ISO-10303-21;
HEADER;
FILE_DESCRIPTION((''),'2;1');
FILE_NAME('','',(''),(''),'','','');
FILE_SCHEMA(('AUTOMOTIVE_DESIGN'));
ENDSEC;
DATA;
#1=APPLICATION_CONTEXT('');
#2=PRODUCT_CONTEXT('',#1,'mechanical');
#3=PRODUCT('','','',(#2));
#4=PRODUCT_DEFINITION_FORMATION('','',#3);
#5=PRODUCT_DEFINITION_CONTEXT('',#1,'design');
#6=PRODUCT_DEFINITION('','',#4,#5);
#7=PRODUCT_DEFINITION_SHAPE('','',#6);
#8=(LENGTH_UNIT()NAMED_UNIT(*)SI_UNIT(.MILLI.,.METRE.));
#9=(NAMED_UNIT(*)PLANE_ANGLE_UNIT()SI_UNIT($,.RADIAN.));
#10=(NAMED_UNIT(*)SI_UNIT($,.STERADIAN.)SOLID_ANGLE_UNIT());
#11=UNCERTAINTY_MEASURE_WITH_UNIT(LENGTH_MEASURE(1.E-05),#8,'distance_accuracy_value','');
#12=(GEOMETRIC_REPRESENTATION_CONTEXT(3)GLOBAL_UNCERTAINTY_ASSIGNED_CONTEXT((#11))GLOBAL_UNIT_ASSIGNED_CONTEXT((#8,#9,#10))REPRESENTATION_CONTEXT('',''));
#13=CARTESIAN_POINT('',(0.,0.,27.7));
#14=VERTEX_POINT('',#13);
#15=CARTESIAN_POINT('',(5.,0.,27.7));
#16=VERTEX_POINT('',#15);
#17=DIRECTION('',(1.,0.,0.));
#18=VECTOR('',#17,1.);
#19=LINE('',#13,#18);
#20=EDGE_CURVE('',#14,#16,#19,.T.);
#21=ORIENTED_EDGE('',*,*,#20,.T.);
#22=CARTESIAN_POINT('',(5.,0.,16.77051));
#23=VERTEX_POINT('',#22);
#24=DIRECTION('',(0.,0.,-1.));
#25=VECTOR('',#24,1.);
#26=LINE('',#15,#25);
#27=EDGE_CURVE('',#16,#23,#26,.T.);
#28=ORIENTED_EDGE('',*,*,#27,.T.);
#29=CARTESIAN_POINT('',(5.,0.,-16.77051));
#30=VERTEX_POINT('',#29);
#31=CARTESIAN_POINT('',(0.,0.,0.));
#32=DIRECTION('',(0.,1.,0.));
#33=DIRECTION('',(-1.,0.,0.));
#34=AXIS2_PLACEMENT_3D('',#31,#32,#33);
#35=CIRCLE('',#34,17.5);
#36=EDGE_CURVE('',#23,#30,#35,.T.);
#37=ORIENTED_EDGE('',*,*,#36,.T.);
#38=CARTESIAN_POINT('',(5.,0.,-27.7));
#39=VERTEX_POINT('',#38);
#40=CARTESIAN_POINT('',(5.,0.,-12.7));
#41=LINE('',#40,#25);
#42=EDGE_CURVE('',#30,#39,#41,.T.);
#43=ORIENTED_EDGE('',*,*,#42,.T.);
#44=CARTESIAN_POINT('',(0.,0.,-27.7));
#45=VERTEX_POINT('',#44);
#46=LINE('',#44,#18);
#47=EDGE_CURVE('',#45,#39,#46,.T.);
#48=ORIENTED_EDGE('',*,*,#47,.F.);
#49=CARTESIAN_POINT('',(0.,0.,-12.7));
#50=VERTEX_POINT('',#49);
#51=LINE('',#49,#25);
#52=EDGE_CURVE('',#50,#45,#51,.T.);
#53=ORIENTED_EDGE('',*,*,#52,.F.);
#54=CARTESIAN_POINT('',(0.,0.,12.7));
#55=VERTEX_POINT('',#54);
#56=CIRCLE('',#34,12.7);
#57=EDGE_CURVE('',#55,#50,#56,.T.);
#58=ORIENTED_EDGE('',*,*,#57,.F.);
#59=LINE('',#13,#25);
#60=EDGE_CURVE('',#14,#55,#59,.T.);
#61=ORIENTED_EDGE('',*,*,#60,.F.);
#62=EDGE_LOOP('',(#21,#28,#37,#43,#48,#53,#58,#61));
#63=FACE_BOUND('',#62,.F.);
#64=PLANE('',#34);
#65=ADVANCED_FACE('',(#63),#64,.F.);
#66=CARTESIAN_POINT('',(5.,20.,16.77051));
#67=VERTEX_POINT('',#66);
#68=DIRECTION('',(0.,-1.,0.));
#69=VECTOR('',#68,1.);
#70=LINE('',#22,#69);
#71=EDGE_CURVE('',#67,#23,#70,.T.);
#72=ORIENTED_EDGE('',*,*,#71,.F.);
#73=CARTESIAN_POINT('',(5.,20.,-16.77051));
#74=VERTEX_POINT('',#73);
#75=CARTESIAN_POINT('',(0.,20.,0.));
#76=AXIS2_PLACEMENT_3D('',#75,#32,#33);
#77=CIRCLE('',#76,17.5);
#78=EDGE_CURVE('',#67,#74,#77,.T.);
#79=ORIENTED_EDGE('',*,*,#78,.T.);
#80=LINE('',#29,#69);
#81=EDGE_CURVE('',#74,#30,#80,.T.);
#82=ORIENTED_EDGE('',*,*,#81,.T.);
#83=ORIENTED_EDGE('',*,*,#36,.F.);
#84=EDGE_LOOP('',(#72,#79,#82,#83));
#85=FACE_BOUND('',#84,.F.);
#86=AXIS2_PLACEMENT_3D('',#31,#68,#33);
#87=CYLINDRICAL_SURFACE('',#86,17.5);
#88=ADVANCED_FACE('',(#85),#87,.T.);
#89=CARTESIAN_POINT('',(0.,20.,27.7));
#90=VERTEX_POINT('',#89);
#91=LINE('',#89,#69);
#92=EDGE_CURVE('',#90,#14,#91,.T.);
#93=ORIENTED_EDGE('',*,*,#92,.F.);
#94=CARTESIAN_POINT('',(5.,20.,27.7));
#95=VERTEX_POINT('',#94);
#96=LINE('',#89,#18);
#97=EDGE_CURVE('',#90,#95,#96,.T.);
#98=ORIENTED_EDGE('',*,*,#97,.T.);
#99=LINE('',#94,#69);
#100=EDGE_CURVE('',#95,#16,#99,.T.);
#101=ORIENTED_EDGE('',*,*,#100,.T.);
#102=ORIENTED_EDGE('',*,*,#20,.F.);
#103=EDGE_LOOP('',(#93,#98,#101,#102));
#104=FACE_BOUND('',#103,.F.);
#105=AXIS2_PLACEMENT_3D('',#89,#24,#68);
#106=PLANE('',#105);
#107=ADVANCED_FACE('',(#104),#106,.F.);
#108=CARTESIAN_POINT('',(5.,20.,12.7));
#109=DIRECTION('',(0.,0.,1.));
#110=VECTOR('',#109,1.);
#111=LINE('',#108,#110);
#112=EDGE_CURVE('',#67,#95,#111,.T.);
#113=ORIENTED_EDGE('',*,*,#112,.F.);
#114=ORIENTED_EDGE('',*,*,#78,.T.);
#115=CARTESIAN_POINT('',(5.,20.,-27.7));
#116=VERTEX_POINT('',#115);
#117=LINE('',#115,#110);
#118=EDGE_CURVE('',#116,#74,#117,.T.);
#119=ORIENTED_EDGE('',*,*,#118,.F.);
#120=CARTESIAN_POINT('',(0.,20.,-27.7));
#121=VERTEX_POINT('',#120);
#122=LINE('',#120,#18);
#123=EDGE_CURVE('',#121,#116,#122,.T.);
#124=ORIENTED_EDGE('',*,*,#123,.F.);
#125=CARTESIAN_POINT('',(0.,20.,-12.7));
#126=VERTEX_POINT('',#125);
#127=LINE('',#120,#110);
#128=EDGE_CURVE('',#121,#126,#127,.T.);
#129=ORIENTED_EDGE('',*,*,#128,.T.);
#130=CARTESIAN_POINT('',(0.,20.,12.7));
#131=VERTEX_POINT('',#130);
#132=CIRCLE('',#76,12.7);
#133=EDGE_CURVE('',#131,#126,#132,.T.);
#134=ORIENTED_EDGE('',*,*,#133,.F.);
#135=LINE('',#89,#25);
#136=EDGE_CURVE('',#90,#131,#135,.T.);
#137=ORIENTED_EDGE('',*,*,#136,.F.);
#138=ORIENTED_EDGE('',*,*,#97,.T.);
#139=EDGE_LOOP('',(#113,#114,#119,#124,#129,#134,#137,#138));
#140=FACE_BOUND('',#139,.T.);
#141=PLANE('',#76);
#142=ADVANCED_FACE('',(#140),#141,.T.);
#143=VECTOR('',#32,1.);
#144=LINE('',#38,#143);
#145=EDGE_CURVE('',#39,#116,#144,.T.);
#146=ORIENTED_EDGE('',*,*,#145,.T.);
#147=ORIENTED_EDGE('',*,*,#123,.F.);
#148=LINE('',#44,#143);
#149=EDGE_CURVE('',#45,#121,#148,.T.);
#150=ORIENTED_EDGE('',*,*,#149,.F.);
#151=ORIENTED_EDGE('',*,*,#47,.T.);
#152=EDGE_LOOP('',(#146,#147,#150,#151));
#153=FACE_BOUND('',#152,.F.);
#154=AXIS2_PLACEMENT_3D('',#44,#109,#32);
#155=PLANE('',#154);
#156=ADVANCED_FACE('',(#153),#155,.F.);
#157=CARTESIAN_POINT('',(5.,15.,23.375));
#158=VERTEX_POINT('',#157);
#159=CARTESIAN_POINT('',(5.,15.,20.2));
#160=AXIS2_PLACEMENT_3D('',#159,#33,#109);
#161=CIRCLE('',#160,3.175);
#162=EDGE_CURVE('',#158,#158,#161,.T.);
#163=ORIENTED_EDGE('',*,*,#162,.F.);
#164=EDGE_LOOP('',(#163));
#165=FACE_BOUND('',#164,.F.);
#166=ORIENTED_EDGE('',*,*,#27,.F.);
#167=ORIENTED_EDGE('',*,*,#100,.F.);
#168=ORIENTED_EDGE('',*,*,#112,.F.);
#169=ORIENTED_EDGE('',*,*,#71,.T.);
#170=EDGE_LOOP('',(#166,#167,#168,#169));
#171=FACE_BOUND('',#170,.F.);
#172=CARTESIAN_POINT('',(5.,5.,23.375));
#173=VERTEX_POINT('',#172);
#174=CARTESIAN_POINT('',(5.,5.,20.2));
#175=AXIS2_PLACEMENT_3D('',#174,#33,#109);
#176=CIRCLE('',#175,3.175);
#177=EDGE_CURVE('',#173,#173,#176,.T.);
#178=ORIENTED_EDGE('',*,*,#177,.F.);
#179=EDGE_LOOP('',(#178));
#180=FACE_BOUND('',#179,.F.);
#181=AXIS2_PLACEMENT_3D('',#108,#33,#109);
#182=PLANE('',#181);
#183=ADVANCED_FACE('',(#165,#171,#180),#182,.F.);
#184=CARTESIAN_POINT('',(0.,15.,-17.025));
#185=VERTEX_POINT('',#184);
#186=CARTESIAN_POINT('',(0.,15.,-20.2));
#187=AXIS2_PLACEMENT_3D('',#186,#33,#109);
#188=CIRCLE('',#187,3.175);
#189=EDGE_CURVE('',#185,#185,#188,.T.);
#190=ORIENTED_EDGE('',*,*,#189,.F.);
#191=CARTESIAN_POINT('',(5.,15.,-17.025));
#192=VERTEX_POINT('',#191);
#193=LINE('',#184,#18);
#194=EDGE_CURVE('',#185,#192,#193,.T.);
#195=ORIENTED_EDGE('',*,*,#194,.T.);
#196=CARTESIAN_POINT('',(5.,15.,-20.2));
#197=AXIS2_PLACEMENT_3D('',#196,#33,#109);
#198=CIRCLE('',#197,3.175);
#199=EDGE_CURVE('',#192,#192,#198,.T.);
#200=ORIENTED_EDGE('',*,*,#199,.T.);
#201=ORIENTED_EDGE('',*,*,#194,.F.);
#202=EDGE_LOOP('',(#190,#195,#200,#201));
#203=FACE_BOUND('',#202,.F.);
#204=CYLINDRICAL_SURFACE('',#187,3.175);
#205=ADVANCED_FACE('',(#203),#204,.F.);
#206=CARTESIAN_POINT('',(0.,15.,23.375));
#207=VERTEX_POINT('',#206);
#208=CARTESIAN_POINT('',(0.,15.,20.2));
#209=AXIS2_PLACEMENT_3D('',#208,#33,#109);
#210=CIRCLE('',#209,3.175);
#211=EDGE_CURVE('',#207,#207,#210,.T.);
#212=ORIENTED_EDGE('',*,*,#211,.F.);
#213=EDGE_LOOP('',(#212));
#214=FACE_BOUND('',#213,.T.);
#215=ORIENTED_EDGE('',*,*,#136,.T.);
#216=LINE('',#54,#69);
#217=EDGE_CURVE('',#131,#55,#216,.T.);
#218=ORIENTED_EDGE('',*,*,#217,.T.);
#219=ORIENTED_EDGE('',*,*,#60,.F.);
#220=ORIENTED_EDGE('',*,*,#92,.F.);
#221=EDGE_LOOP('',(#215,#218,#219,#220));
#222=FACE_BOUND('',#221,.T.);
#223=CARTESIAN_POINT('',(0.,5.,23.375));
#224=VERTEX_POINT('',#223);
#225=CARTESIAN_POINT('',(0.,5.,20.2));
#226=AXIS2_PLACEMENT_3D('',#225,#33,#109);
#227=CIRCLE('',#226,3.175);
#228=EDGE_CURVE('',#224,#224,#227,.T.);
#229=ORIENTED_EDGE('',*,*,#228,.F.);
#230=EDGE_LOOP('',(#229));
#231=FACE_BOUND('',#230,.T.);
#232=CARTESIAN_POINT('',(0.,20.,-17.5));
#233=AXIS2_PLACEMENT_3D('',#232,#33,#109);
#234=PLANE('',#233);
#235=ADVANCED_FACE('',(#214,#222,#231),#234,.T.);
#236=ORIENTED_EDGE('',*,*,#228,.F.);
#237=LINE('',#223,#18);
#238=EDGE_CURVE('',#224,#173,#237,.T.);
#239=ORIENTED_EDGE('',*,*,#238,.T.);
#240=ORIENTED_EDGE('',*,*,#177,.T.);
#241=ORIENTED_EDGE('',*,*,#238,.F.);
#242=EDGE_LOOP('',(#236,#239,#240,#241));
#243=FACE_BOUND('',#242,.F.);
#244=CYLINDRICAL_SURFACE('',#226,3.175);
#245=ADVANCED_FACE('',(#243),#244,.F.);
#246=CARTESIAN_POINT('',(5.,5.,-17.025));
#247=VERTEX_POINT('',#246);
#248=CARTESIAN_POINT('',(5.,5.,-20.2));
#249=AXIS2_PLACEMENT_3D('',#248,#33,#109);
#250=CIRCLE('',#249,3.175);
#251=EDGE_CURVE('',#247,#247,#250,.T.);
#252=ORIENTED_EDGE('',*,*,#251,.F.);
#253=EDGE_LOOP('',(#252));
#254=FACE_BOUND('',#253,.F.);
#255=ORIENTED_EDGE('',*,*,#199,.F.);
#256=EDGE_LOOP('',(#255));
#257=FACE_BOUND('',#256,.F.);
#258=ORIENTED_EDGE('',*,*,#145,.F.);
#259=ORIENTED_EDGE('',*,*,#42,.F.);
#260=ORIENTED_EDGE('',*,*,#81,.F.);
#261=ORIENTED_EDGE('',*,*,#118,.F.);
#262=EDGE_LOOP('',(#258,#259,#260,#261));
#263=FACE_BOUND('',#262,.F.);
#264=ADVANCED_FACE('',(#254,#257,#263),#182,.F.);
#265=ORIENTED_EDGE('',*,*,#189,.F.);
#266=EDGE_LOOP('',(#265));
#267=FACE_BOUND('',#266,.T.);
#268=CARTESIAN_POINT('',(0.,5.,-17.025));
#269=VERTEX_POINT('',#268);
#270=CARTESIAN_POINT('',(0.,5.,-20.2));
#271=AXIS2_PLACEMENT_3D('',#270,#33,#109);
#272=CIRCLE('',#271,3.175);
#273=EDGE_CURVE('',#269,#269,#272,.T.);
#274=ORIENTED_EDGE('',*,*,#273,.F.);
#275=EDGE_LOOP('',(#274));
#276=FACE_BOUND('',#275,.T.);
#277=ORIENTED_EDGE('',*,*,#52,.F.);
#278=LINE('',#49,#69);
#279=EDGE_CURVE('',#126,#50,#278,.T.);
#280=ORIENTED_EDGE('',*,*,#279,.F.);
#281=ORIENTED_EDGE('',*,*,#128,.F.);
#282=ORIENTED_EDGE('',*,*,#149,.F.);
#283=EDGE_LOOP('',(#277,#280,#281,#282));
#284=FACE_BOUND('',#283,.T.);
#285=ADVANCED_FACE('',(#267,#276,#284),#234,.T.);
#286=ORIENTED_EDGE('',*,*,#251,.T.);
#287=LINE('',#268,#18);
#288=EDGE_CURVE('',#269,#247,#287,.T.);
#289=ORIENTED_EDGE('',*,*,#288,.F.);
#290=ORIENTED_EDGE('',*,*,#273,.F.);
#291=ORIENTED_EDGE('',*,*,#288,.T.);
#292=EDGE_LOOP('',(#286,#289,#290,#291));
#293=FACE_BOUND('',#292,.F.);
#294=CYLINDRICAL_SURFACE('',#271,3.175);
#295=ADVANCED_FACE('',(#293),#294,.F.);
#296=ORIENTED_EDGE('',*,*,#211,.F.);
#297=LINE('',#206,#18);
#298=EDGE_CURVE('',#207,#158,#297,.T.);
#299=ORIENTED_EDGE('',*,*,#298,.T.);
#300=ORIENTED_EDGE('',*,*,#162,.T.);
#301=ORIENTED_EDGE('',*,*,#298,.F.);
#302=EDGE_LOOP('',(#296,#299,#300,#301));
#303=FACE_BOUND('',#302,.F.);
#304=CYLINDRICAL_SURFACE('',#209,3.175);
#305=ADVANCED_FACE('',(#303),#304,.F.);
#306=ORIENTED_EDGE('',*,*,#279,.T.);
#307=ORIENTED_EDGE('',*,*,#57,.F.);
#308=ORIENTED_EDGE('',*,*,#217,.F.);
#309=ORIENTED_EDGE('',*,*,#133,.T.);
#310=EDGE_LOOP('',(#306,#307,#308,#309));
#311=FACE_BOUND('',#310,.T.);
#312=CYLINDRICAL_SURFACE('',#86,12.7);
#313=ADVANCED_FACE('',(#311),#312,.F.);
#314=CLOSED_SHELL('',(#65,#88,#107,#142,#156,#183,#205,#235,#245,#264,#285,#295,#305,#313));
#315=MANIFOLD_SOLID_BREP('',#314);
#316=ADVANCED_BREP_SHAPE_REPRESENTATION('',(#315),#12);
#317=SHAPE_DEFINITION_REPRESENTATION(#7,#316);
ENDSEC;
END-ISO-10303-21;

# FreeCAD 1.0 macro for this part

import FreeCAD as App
import Part
import Sketcher
from FreeCAD import Vector
Q = App.Units.Quantity

doc = App.newDocument("Part")
params = doc.addObject("Spreadsheet::Sheet", "Params")
for row, (alias, value) in enumerate([
    ("sketch1_diameter", "35 mm"),
    ("sketch1_diameter2", "25.4 mm"),
    ("pad1_length", "20 mm"),
    ("sketch2_width", "17.5 mm"),
    ("pocket1_length", "20 mm"),
    ("sketch3_height", "15 mm"),
    ("sketch3_width", "20 mm"),
    ("pad2_length", "5 mm"),
    ("sketch4_diameter", "6.35 mm"),
    ("pocket2_length", "5 mm"),
], start=1):
    params.set(f"A{row}", alias)
    params.set(f"B{row}", "=" + value)
    params.setAlias(f"B{row}", alias)

body = doc.addObject("PartDesign::Body", "Body")

# Sketch on XZ plane
sketch1 = body.newObject("Sketcher::SketchObject", "Sketch")
sketch1.AttachmentSupport = (doc.getObject("XZ_Plane"), [""])
sketch1.MapMode = "FlatFace"
sketch1.addGeometry([
    Part.Circle(Vector(0, 0, 0), Vector(0, 0, 1), 18),
    Part.Circle(Vector(0, 0, 0), Vector(0, 0, 1), 13),
], False)
sketch1.addConstraint([
    Sketcher.Constraint("Coincident", 0, 3, -1, 1),
    Sketcher.Constraint("Coincident", 1, 3, -1, 1),
    Sketcher.Constraint("Diameter", 0, Q("35 mm")),
    Sketcher.Constraint("Diameter", 1, Q("25.4 mm")),
])
sketch1.setExpression("Constraints[2]", "Params.sketch1_diameter")
sketch1.setExpression("Constraints[3]", "Params.sketch1_diameter2")
pad1 = body.newObject("PartDesign::Pad", "Pad")
pad1.Profile = sketch1
pad1.setExpression("Length", "Params.pad1_length")
pad1.Reversed = True

# Sketch on XZ plane
sketch2 = body.newObject("Sketcher::SketchObject", "Sketch001")
sketch2.AttachmentSupport = (doc.getObject("XZ_Plane"), [""])
sketch2.MapMode = "FlatFace"
sketch2.AttachmentOffset = App.Placement(Vector(0, 0, -20), App.Rotation())
sketch2.addGeometry([
    Part.LineSegment(Vector(-18, 18, 0), Vector(0, 18, 0)),
    Part.LineSegment(Vector(0, 18, 0), Vector(0, -18, 0)),
    Part.LineSegment(Vector(0, -18, 0), Vector(-18, -18, 0)),
    Part.LineSegment(Vector(-18, -18, 0), Vector(-18, 18, 0)),
], False)
sketch2.addConstraint([
    Sketcher.Constraint("Coincident", 0, 2, 1, 1),
    Sketcher.Constraint("Coincident", 1, 2, 2, 1),
    Sketcher.Constraint("Coincident", 2, 2, 3, 1),
    Sketcher.Constraint("Coincident", 3, 2, 0, 1),
    Sketcher.Constraint("Horizontal", 0),
    Sketcher.Constraint("Vertical", 1),
    Sketcher.Constraint("Horizontal", 2),
    Sketcher.Constraint("Vertical", 3),
    Sketcher.Constraint("PointOnObject", 0, 2, -2),
    Sketcher.Constraint("DistanceX", 0, 1, 0, 2, Q("17.5 mm")),
    Sketcher.Constraint("DistanceY", -1, 1, 0, 2, Q("17.5 mm")),
    Sketcher.Constraint("DistanceY", 1, 2, 1, 1, Q("35.8836 mm")),
])
sketch2.setExpression("Constraints[9]", "Params.sketch2_width")
pocket1 = body.newObject("PartDesign::Pocket", "Pocket")
pocket1.Profile = sketch2
pocket1.setExpression("Length", "Params.pocket1_length")
pocket1.Reversed = True

# Sketch on YZ plane
sketch3 = body.newObject("Sketcher::SketchObject", "Sketch002")
sketch3.AttachmentSupport = (doc.getObject("YZ_Plane"), [""])
sketch3.MapMode = "FlatFace"
sketch3.addGeometry([
    Part.LineSegment(Vector(0, -13, 0), Vector(20, -13, 0)),  # 0
    Part.LineSegment(Vector(20, -13, 0), Vector(20, -28, 0)),  # 1
    Part.LineSegment(Vector(20, -28, 0), Vector(0, -28, 0)),  # 2
    Part.LineSegment(Vector(0, -28, 0), Vector(0, -13, 0)),  # 3
    Part.LineSegment(Vector(20, 28, 0), Vector(20, 13, 0)),  # 4
    Part.LineSegment(Vector(20, 13, 0), Vector(0, 13, 0)),  # 5
    Part.LineSegment(Vector(0, 13, 0), Vector(0, 28, 0)),  # 6
    Part.LineSegment(Vector(0, 28, 0), Vector(20, 28, 0)),  # 7
], False)
sketch3.addConstraint([
    Sketcher.Constraint("Coincident", 0, 2, 1, 1),
    Sketcher.Constraint("Coincident", 1, 2, 2, 1),
    Sketcher.Constraint("Coincident", 2, 2, 3, 1),
    Sketcher.Constraint("Coincident", 3, 2, 0, 1),
    Sketcher.Constraint("Coincident", 4, 2, 5, 1),
    Sketcher.Constraint("Coincident", 5, 2, 6, 1),
    Sketcher.Constraint("Coincident", 6, 2, 7, 1),
    Sketcher.Constraint("Coincident", 7, 2, 4, 1),
    Sketcher.Constraint("Horizontal", 0),
    Sketcher.Constraint("Vertical", 1),
    Sketcher.Constraint("Horizontal", 2),
    Sketcher.Constraint("Vertical", 3),
    Sketcher.Constraint("Vertical", 4),
    Sketcher.Constraint("Horizontal", 5),
    Sketcher.Constraint("Vertical", 6),
    Sketcher.Constraint("Horizontal", 7),
    Sketcher.Constraint("Symmetric", 3, 2, 5, 2, -1, 1),
    Sketcher.Constraint("Symmetric", 2, 2, 6, 2, -1),
    Sketcher.Constraint("Vertical", 1, 2, 4, 2),
    Sketcher.Constraint("DistanceY", 1, 2, 1, 1, Q("15 mm")),
    Sketcher.Constraint("DistanceX", 0, 1, 0, 2, Q("20 mm")),
    Sketcher.Constraint("DistanceY", 0, 2, -1, 1, Q("12.7 mm")),
])
sketch3.setExpression("Constraints[19]", "Params.sketch3_height")
sketch3.setExpression("Constraints[20]", "Params.sketch3_width")
pad2 = body.newObject("PartDesign::Pad", "Pad001")
pad2.Profile = sketch3
pad2.setExpression("Length", "Params.pad2_length")

# Sketch on YZ plane
sketch4 = body.newObject("Sketcher::SketchObject", "Sketch003")
sketch4.AttachmentSupport = (doc.getObject("YZ_Plane"), [""])
sketch4.MapMode = "FlatFace"
sketch4.addGeometry([
    Part.Circle(Vector(15, -20.2, 0), Vector(0, 0, 1), 3.2),
    Part.Circle(Vector(5, -20.2, 0), Vector(0, 0, 1), 3.2),
    Part.Circle(Vector(5, 20.2, 0), Vector(0, 0, 1), 3.2),
    Part.Circle(Vector(15, 20.2, 0), Vector(0, 0, 1), 3.2),
], False)
sketch4.addConstraint([
    Sketcher.Constraint("Equal", 0, 1),
    Sketcher.Constraint("Equal", 1, 2),
    Sketcher.Constraint("Equal", 2, 3),
    Sketcher.Constraint("Symmetric", 1, 3, 2, 3, -1),
    Sketcher.Constraint("Symmetric", 0, 3, 3, 3, -1),
    Sketcher.Constraint("Horizontal", 0, 3, 1, 3),
    Sketcher.Constraint("Diameter", 0, Q("6.35 mm")),
    Sketcher.Constraint("DistanceX", -1, 1, 0, 3, Q("15 mm")),
    Sketcher.Constraint("DistanceX", -1, 1, 1, 3, Q("5 mm")),
    Sketcher.Constraint("DistanceY", 0, 3, -1, 1, Q("20.2 mm")),
])
sketch4.setExpression("Constraints[6]", "Params.sketch4_diameter")
pocket2 = body.newObject("PartDesign::Pocket", "Pocket001")
pocket2.Profile = sketch4
pocket2.setExpression("Length", "Params.pocket2_length")
pocket2.Reversed = True

doc.recompute()
